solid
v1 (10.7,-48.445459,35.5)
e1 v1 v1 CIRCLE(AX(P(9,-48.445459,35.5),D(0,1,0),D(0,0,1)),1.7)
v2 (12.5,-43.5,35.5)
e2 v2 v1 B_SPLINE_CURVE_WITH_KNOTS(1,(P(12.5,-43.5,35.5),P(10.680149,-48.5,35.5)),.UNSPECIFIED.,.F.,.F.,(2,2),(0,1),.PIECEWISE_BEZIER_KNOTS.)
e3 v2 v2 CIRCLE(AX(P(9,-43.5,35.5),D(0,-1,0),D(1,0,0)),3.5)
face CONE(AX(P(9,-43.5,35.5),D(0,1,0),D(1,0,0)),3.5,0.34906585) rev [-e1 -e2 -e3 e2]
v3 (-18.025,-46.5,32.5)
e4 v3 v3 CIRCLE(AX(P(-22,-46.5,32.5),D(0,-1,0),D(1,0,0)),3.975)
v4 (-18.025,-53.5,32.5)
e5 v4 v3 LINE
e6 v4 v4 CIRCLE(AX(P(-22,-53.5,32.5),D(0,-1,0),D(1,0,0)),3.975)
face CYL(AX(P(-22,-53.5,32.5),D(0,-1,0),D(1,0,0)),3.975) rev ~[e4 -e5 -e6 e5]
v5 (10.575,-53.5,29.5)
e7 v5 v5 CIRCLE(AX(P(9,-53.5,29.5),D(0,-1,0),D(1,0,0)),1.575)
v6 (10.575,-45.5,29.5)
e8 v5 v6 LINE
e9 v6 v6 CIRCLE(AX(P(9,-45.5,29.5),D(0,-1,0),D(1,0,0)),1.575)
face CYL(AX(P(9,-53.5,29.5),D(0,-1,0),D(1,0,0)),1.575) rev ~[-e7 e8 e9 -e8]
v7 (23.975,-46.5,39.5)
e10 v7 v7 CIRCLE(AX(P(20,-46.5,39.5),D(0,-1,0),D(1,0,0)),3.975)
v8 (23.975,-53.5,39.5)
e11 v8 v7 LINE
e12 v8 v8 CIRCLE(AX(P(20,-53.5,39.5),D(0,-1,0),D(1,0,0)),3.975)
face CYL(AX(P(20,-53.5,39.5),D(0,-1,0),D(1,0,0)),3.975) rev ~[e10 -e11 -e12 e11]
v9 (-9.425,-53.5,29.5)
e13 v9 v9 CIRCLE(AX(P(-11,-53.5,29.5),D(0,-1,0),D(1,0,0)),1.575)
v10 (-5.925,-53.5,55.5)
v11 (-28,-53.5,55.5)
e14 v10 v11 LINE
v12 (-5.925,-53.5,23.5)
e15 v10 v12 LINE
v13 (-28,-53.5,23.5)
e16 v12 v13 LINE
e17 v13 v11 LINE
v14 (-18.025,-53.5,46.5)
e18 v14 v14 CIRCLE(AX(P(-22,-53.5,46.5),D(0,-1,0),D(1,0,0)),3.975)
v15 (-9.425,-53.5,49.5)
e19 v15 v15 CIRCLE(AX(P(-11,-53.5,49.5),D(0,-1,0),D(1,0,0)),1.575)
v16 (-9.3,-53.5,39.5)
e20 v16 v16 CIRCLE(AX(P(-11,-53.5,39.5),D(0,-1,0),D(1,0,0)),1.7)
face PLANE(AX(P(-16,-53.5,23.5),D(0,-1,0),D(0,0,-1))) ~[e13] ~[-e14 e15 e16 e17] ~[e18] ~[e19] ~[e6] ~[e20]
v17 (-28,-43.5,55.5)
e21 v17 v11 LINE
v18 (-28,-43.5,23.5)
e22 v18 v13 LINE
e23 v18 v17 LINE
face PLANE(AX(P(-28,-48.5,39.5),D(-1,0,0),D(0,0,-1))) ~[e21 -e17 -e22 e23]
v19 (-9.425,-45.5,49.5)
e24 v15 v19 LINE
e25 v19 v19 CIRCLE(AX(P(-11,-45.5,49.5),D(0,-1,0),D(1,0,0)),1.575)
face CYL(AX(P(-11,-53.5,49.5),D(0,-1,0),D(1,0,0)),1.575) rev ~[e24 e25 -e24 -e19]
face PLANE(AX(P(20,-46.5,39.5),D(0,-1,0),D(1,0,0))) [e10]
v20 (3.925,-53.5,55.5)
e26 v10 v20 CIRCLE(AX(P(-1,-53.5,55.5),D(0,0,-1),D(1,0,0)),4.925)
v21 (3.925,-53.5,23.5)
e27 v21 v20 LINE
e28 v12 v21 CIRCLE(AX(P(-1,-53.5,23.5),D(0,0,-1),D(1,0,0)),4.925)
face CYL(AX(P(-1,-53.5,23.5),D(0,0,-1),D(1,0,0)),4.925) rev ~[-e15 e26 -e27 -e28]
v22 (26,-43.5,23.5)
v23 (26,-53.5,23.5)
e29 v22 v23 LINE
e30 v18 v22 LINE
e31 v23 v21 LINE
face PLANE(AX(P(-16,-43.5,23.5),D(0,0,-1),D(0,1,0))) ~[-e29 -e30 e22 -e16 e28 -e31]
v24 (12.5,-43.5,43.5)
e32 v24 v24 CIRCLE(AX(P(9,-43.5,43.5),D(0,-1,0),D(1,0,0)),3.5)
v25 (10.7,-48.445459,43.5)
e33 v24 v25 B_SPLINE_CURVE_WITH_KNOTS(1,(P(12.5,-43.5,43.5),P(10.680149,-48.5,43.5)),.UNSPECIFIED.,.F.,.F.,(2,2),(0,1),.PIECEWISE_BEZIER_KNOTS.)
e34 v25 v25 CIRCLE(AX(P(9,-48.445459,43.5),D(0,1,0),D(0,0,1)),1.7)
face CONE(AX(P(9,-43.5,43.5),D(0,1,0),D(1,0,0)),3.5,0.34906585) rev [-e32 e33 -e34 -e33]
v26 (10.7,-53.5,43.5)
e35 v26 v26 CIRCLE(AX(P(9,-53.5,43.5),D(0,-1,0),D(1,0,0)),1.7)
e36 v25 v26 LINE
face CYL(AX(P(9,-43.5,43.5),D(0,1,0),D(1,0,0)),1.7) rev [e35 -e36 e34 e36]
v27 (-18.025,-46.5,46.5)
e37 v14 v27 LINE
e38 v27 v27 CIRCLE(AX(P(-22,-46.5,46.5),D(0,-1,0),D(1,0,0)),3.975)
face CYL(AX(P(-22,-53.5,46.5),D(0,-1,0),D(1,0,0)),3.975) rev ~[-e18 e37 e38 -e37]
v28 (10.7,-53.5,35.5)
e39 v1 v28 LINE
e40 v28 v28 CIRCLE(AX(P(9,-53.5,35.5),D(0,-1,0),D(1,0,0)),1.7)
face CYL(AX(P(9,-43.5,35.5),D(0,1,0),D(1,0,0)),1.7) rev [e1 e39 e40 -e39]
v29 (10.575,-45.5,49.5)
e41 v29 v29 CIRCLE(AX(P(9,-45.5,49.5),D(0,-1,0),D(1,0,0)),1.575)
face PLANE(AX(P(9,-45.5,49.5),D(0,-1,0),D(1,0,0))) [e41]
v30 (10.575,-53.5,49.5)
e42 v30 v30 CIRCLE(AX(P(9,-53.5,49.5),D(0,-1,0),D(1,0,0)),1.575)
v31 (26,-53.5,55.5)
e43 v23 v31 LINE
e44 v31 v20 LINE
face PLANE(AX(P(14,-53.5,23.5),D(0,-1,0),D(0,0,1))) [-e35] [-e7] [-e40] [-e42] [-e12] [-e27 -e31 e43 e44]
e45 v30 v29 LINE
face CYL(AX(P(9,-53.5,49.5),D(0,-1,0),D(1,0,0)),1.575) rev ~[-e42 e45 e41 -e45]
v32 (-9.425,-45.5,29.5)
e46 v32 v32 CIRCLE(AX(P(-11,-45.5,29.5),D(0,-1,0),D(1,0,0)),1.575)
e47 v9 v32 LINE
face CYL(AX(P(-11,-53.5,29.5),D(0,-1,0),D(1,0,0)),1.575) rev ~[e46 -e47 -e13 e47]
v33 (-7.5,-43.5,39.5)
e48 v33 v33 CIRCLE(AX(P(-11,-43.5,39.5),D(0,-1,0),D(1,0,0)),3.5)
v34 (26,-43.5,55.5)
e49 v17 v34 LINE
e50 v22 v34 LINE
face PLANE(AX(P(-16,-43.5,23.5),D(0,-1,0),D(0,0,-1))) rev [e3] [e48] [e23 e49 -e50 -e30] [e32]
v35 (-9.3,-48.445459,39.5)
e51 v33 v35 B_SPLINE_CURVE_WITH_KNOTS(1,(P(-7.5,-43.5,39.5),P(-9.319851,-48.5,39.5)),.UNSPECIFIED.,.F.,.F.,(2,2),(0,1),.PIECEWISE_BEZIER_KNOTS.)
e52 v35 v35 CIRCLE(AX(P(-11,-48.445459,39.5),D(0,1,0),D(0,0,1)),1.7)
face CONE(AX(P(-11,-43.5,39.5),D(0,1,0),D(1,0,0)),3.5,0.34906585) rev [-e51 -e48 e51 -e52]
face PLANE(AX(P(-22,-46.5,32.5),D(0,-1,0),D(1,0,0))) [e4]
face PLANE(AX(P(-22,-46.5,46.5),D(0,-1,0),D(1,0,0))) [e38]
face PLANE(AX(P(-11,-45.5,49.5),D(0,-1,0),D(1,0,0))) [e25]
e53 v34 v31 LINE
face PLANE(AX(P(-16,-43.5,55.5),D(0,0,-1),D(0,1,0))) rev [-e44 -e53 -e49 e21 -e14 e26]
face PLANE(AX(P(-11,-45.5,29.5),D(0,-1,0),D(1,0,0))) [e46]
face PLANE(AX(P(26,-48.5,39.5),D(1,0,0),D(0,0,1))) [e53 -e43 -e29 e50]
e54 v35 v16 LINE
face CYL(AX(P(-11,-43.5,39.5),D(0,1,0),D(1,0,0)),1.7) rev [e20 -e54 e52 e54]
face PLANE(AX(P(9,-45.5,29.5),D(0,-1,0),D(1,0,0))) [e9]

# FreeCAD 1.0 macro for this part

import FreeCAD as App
import Part
import Sketcher
Q = App.Units.Quantity

doc = App.newDocument("Part")
params = doc.addObject("Spreadsheet::Sheet", "Params")
for row, (alias, value) in enumerate([
    ("sketch1_diameter", "3.4 mm"),
    ("sketch1_width", "30 mm"),
    ("sketch1_height", "32 mm"),
    ("pad1_length", "10 mm"),
    ("sketch2_diameter", "7 mm"),
    ("pocket1_length", "5 mm"),
    ("pocket1_taper", "-20 deg"),
    ("sketch3_diameter", "9.85 mm"),
    ("pocket2_length", "32 mm"),
    ("sketch4_width", "10 mm"),
    ("sketch4_height", "32 mm"),
    ("pad2_length", "12 mm"),
    ("sketch5_diameter", "3.15 mm"),
    ("pocket3_length", "8 mm"),
    ("sketch6_diameter", "7.95 mm"),
    ("pocket4_length", "7 mm"),
], start=1):
    params.set(f"A{row}", alias)
    params.set(f"B{row}", "=" + value)
    params.setAlias(f"B{row}", alias)

body = doc.addObject("PartDesign::Body", "Body")

# Sketch on XZ plane
sketch1 = doc.addObject("Sketcher::SketchObject", "Sketch")
body.addObject(sketch1)
sketch1.AttachmentSupport = (doc.XZ_Plane, [""])
sketch1.MapMode = "FlatFace"
sketch1.addGeometry(Part.LineSegment(App.Vector(-15, 16, 0), App.Vector(-15, -16, 0)), False)
sketch1.addGeometry(Part.LineSegment(App.Vector(-15, -16, 0), App.Vector(15, -16, 0)), False)
sketch1.addGeometry(Part.LineSegment(App.Vector(15, -16, 0), App.Vector(15, 16, 0)), False)
sketch1.addGeometry(Part.LineSegment(App.Vector(15, 16, 0), App.Vector(-15, 16, 0)), False)
sketch1.addGeometry(Part.Circle(App.Vector(10, -4, 0), App.Vector(0, 0, 1), 1.7), False)
sketch1.addGeometry(Part.Circle(App.Vector(-10, 0, 0), App.Vector(0, 0, 1), 1.7), False)
sketch1.addGeometry(Part.Circle(App.Vector(10, 4, 0), App.Vector(0, 0, 1), 1.7), False)
sketch1.addConstraint(Sketcher.Constraint("Coincident", 0, 2, 1, 1))
sketch1.addConstraint(Sketcher.Constraint("Coincident", 1, 2, 2, 1))
sketch1.addConstraint(Sketcher.Constraint("Coincident", 2, 2, 3, 1))
sketch1.addConstraint(Sketcher.Constraint("Coincident", 3, 2, 0, 1))
sketch1.addConstraint(Sketcher.Constraint("Vertical", 0))
sketch1.addConstraint(Sketcher.Constraint("Horizontal", 1))
sketch1.addConstraint(Sketcher.Constraint("Vertical", 2))
sketch1.addConstraint(Sketcher.Constraint("Horizontal", 3))
sketch1.addConstraint(Sketcher.Constraint("Equal", 4, 5))
sketch1.addConstraint(Sketcher.Constraint("Equal", 5, 6))
sketch1.addConstraint(Sketcher.Constraint("Symmetric", 0, 2, 2, 2, -1, 1))
sketch1.addConstraint(Sketcher.Constraint("Symmetric", 4, 3, 6, 3, -1))
sketch1.addConstraint(Sketcher.Constraint("PointOnObject", 5, 3, -1))
sketch1.addConstraint(Sketcher.Constraint("Diameter", 4, Q("3.4 mm")))
sketch1.addConstraint(Sketcher.Constraint("DistanceX", 1, 1, 1, 2, Q("30 mm")))
sketch1.addConstraint(Sketcher.Constraint("DistanceY", 0, 2, 0, 1, Q("32 mm")))
sketch1.addConstraint(Sketcher.Constraint("DistanceX", -1, 1, 4, 3, Q("10 mm")))
sketch1.addConstraint(Sketcher.Constraint("DistanceY", 4, 3, -1, 1, Q("4 mm")))
sketch1.addConstraint(Sketcher.Constraint("DistanceX", 5, 3, -1, 1, Q("10 mm")))
sketch1.setExpression("Constraints[13]", "Params.sketch1_diameter")
sketch1.setExpression("Constraints[14]", "Params.sketch1_width")
sketch1.setExpression("Constraints[15]", "Params.sketch1_height")
pad1 = doc.addObject("PartDesign::Pad", "Pad")
body.addObject(pad1)
pad1.Profile = sketch1
pad1.setExpression("Length", "Params.pad1_length")

# Sketch on XZ plane
sketch2 = doc.addObject("Sketcher::SketchObject", "Sketch001")
body.addObject(sketch2)
sketch2.AttachmentSupport = (doc.XZ_Plane, [""])
sketch2.MapMode = "FlatFace"
sketch2.addGeometry(Part.Circle(App.Vector(-10, 0, 0), App.Vector(0, 0, 1), 3.5), False)
sketch2.addGeometry(Part.Circle(App.Vector(10, -4, 0), App.Vector(0, 0, 1), 3.5), False)
sketch2.addGeometry(Part.Circle(App.Vector(10, 4, 0), App.Vector(0, 0, 1), 3.5), False)
sketch2.addConstraint(Sketcher.Constraint("Equal", 0, 1))
sketch2.addConstraint(Sketcher.Constraint("Equal", 1, 2))
sketch2.addConstraint(Sketcher.Constraint("Symmetric", 1, 3, 2, 3, -1))
sketch2.addConstraint(Sketcher.Constraint("PointOnObject", 0, 3, -1))
sketch2.addConstraint(Sketcher.Constraint("Diameter", 0, Q("7 mm")))
sketch2.addConstraint(Sketcher.Constraint("DistanceX", 0, 3, -1, 1, Q("10 mm")))
sketch2.addConstraint(Sketcher.Constraint("DistanceX", -1, 1, 1, 3, Q("10 mm")))
sketch2.addConstraint(Sketcher.Constraint("DistanceY", 1, 3, -1, 1, Q("4 mm")))
sketch2.setExpression("Constraints[4]", "Params.sketch2_diameter")
pocket1 = doc.addObject("PartDesign::Pocket", "Pocket")
body.addObject(pocket1)
pocket1.Profile = sketch2
pocket1.setExpression("Length", "Params.pocket1_length")
pocket1.Reversed = True
pocket1.setExpression("TaperAngle", "Params.pocket1_taper")

# Sketch on XY plane
sketch3 = doc.addObject("Sketcher::SketchObject", "Sketch002")
body.addObject(sketch3)
sketch3.AttachmentSupport = (doc.XY_Plane, [""])
sketch3.MapMode = "FlatFace"
sketch3.AttachmentOffset = App.Placement(App.Vector(0, 0, -16), App.Rotation())
sketch3.addGeometry(Part.Circle(App.Vector(0, -10, 0), App.Vector(0, 0, 1), 4.9), False)
sketch3.addConstraint(Sketcher.Constraint("PointOnObject", 0, 3, -2))
sketch3.addConstraint(Sketcher.Constraint("Diameter", 0, Q("9.85 mm")))
sketch3.addConstraint(Sketcher.Constraint("DistanceY", 0, 3, -1, 1, Q("10 mm")))
sketch3.setExpression("Constraints[1]", "Params.sketch3_diameter")
pocket2 = doc.addObject("PartDesign::Pocket", "Pocket001")
body.addObject(pocket2)
pocket2.Profile = sketch3
pocket2.setExpression("Length", "Params.pocket2_length")
pocket2.Reversed = True

# Sketch on YZ plane
sketch4 = doc.addObject("Sketcher::SketchObject", "Sketch003")
body.addObject(sketch4)
sketch4.AttachmentSupport = (doc.YZ_Plane, [""])
sketch4.MapMode = "FlatFace"
sketch4.AttachmentOffset = App.Placement(App.Vector(0, 0, 15), App.Rotation())
sketch4.addGeometry(Part.LineSegment(App.Vector(-10, -16, 0), App.Vector(0, -16, 0)), False)
sketch4.addGeometry(Part.LineSegment(App.Vector(0, -16, 0), App.Vector(0, 16, 0)), False)
sketch4.addGeometry(Part.LineSegment(App.Vector(0, 16, 0), App.Vector(-10, 16, 0)), False)
sketch4.addGeometry(Part.LineSegment(App.Vector(-10, 16, 0), App.Vector(-10, -16, 0)), False)
sketch4.addConstraint(Sketcher.Constraint("Coincident", 0, 2, 1, 1))
sketch4.addConstraint(Sketcher.Constraint("Coincident", 1, 2, 2, 1))
sketch4.addConstraint(Sketcher.Constraint("Coincident", 2, 2, 3, 1))
sketch4.addConstraint(Sketcher.Constraint("Coincident", 3, 2, 0, 1))
sketch4.addConstraint(Sketcher.Constraint("Horizontal", 0))
sketch4.addConstraint(Sketcher.Constraint("Vertical", 1))
sketch4.addConstraint(Sketcher.Constraint("Horizontal", 2))
sketch4.addConstraint(Sketcher.Constraint("Vertical", 3))
sketch4.addConstraint(Sketcher.Constraint("Symmetric", 0, 2, 1, 2, -1, 1))
sketch4.addConstraint(Sketcher.Constraint("DistanceX", 0, 1, 0, 2, Q("10 mm")))
sketch4.addConstraint(Sketcher.Constraint("DistanceY", 1, 1, 1, 2, Q("32 mm")))
sketch4.setExpression("Constraints[9]", "Params.sketch4_width")
sketch4.setExpression("Constraints[10]", "Params.sketch4_height")
pad2 = doc.addObject("PartDesign::Pad", "Pad001")
body.addObject(pad2)
pad2.Profile = sketch4
pad2.setExpression("Length", "Params.pad2_length")

# Sketch on XZ plane
sketch5 = doc.addObject("Sketcher::SketchObject", "Sketch004")
body.addObject(sketch5)
sketch5.AttachmentSupport = (doc.XZ_Plane, [""])
sketch5.MapMode = "FlatFace"
sketch5.AttachmentOffset = App.Placement(App.Vector(0, 0, 10), App.Rotation())
sketch5.addGeometry(Part.Circle(App.Vector(-10, 10, 0), App.Vector(0, 0, 1), 1.6), False)
sketch5.addGeometry(Part.Circle(App.Vector(-10, -10, 0), App.Vector(0, 0, 1), 1.6), False)
sketch5.addGeometry(Part.Circle(App.Vector(10, 10, 0), App.Vector(0, 0, 1), 1.6), False)
sketch5.addGeometry(Part.Circle(App.Vector(10, -10, 0), App.Vector(0, 0, 1), 1.6), False)
sketch5.addConstraint(Sketcher.Constraint("Equal", 0, 1))
sketch5.addConstraint(Sketcher.Constraint("Equal", 1, 2))
sketch5.addConstraint(Sketcher.Constraint("Equal", 2, 3))
sketch5.addConstraint(Sketcher.Constraint("Symmetric", 1, 3, 2, 3, -1, 1))
sketch5.addConstraint(Sketcher.Constraint("Symmetric", 0, 3, 3, 3, -1, 1))
sketch5.addConstraint(Sketcher.Constraint("Symmetric", 0, 3, 2, 3, -2))
sketch5.addConstraint(Sketcher.Constraint("Diameter", 0, Q("3.15 mm")))
sketch5.addConstraint(Sketcher.Constraint("DistanceX", 0, 3, -1, 1, Q("10 mm")))
sketch5.addConstraint(Sketcher.Constraint("DistanceY", -1, 1, 0, 3, Q("10 mm")))
sketch5.setExpression("Constraints[6]", "Params.sketch5_diameter")
pocket3 = doc.addObject("PartDesign::Pocket", "Pocket002")
body.addObject(pocket3)
pocket3.Profile = sketch5
pocket3.setExpression("Length", "Params.pocket3_length")
doc.recompute()

mirrored = doc.addObject("PartDesign::Mirrored", "Mirrored")
body.addObject(mirrored)
mirrored.Originals = [pad2]
mirrored.MirrorPlane = (doc.YZ_Plane, [""])
body.Tip = mirrored

# Sketch on XZ plane
sketch6 = doc.addObject("Sketcher::SketchObject", "Sketch005")
body.addObject(sketch6)
sketch6.AttachmentSupport = (doc.XZ_Plane, [""])
sketch6.MapMode = "FlatFace"
sketch6.AttachmentOffset = App.Placement(App.Vector(0, 0, 10), App.Rotation())
sketch6.addGeometry(Part.Circle(App.Vector(21, 0, 0), App.Vector(0, 0, 1), 4), False)
sketch6.addGeometry(Part.Circle(App.Vector(-21, 7, 0), App.Vector(0, 0, 1), 4), False)
sketch6.addGeometry(Part.Circle(App.Vector(-21, -7, 0), App.Vector(0, 0, 1), 4), False)
sketch6.addConstraint(Sketcher.Constraint("Equal", 0, 1))
sketch6.addConstraint(Sketcher.Constraint("Equal", 1, 2))
sketch6.addConstraint(Sketcher.Constraint("Symmetric", 1, 3, 2, 3, -1))
sketch6.addConstraint(Sketcher.Constraint("PointOnObject", 0, 3, -1))
sketch6.addConstraint(Sketcher.Constraint("Diameter", 0, Q("7.95 mm")))
sketch6.addConstraint(Sketcher.Constraint("DistanceX", -1, 1, 0, 3, Q("21 mm")))
sketch6.addConstraint(Sketcher.Constraint("DistanceX", 1, 3, -1, 1, Q("21 mm")))
sketch6.addConstraint(Sketcher.Constraint("DistanceY", -1, 1, 1, 3, Q("7 mm")))
sketch6.setExpression("Constraints[4]", "Params.sketch6_diameter")
pocket4 = doc.addObject("PartDesign::Pocket", "Pocket003")
body.addObject(pocket4)
pocket4.Profile = sketch6
pocket4.setExpression("Length", "Params.pocket4_length")
body2 = doc.addObject("PartDesign::Body", "Body001")
doc.recompute()

body.Placement = App.Placement(App.Vector(-1, -43.5, 39.5), App.Rotation(App.Vector(0, 0, 1), 0))
boolean = doc.addObject("PartDesign::Boolean", "Boolean")
body2.addObject(boolean)
boolean.Type = "Fuse"
boolean.addObjects([body])

doc.recompute()
